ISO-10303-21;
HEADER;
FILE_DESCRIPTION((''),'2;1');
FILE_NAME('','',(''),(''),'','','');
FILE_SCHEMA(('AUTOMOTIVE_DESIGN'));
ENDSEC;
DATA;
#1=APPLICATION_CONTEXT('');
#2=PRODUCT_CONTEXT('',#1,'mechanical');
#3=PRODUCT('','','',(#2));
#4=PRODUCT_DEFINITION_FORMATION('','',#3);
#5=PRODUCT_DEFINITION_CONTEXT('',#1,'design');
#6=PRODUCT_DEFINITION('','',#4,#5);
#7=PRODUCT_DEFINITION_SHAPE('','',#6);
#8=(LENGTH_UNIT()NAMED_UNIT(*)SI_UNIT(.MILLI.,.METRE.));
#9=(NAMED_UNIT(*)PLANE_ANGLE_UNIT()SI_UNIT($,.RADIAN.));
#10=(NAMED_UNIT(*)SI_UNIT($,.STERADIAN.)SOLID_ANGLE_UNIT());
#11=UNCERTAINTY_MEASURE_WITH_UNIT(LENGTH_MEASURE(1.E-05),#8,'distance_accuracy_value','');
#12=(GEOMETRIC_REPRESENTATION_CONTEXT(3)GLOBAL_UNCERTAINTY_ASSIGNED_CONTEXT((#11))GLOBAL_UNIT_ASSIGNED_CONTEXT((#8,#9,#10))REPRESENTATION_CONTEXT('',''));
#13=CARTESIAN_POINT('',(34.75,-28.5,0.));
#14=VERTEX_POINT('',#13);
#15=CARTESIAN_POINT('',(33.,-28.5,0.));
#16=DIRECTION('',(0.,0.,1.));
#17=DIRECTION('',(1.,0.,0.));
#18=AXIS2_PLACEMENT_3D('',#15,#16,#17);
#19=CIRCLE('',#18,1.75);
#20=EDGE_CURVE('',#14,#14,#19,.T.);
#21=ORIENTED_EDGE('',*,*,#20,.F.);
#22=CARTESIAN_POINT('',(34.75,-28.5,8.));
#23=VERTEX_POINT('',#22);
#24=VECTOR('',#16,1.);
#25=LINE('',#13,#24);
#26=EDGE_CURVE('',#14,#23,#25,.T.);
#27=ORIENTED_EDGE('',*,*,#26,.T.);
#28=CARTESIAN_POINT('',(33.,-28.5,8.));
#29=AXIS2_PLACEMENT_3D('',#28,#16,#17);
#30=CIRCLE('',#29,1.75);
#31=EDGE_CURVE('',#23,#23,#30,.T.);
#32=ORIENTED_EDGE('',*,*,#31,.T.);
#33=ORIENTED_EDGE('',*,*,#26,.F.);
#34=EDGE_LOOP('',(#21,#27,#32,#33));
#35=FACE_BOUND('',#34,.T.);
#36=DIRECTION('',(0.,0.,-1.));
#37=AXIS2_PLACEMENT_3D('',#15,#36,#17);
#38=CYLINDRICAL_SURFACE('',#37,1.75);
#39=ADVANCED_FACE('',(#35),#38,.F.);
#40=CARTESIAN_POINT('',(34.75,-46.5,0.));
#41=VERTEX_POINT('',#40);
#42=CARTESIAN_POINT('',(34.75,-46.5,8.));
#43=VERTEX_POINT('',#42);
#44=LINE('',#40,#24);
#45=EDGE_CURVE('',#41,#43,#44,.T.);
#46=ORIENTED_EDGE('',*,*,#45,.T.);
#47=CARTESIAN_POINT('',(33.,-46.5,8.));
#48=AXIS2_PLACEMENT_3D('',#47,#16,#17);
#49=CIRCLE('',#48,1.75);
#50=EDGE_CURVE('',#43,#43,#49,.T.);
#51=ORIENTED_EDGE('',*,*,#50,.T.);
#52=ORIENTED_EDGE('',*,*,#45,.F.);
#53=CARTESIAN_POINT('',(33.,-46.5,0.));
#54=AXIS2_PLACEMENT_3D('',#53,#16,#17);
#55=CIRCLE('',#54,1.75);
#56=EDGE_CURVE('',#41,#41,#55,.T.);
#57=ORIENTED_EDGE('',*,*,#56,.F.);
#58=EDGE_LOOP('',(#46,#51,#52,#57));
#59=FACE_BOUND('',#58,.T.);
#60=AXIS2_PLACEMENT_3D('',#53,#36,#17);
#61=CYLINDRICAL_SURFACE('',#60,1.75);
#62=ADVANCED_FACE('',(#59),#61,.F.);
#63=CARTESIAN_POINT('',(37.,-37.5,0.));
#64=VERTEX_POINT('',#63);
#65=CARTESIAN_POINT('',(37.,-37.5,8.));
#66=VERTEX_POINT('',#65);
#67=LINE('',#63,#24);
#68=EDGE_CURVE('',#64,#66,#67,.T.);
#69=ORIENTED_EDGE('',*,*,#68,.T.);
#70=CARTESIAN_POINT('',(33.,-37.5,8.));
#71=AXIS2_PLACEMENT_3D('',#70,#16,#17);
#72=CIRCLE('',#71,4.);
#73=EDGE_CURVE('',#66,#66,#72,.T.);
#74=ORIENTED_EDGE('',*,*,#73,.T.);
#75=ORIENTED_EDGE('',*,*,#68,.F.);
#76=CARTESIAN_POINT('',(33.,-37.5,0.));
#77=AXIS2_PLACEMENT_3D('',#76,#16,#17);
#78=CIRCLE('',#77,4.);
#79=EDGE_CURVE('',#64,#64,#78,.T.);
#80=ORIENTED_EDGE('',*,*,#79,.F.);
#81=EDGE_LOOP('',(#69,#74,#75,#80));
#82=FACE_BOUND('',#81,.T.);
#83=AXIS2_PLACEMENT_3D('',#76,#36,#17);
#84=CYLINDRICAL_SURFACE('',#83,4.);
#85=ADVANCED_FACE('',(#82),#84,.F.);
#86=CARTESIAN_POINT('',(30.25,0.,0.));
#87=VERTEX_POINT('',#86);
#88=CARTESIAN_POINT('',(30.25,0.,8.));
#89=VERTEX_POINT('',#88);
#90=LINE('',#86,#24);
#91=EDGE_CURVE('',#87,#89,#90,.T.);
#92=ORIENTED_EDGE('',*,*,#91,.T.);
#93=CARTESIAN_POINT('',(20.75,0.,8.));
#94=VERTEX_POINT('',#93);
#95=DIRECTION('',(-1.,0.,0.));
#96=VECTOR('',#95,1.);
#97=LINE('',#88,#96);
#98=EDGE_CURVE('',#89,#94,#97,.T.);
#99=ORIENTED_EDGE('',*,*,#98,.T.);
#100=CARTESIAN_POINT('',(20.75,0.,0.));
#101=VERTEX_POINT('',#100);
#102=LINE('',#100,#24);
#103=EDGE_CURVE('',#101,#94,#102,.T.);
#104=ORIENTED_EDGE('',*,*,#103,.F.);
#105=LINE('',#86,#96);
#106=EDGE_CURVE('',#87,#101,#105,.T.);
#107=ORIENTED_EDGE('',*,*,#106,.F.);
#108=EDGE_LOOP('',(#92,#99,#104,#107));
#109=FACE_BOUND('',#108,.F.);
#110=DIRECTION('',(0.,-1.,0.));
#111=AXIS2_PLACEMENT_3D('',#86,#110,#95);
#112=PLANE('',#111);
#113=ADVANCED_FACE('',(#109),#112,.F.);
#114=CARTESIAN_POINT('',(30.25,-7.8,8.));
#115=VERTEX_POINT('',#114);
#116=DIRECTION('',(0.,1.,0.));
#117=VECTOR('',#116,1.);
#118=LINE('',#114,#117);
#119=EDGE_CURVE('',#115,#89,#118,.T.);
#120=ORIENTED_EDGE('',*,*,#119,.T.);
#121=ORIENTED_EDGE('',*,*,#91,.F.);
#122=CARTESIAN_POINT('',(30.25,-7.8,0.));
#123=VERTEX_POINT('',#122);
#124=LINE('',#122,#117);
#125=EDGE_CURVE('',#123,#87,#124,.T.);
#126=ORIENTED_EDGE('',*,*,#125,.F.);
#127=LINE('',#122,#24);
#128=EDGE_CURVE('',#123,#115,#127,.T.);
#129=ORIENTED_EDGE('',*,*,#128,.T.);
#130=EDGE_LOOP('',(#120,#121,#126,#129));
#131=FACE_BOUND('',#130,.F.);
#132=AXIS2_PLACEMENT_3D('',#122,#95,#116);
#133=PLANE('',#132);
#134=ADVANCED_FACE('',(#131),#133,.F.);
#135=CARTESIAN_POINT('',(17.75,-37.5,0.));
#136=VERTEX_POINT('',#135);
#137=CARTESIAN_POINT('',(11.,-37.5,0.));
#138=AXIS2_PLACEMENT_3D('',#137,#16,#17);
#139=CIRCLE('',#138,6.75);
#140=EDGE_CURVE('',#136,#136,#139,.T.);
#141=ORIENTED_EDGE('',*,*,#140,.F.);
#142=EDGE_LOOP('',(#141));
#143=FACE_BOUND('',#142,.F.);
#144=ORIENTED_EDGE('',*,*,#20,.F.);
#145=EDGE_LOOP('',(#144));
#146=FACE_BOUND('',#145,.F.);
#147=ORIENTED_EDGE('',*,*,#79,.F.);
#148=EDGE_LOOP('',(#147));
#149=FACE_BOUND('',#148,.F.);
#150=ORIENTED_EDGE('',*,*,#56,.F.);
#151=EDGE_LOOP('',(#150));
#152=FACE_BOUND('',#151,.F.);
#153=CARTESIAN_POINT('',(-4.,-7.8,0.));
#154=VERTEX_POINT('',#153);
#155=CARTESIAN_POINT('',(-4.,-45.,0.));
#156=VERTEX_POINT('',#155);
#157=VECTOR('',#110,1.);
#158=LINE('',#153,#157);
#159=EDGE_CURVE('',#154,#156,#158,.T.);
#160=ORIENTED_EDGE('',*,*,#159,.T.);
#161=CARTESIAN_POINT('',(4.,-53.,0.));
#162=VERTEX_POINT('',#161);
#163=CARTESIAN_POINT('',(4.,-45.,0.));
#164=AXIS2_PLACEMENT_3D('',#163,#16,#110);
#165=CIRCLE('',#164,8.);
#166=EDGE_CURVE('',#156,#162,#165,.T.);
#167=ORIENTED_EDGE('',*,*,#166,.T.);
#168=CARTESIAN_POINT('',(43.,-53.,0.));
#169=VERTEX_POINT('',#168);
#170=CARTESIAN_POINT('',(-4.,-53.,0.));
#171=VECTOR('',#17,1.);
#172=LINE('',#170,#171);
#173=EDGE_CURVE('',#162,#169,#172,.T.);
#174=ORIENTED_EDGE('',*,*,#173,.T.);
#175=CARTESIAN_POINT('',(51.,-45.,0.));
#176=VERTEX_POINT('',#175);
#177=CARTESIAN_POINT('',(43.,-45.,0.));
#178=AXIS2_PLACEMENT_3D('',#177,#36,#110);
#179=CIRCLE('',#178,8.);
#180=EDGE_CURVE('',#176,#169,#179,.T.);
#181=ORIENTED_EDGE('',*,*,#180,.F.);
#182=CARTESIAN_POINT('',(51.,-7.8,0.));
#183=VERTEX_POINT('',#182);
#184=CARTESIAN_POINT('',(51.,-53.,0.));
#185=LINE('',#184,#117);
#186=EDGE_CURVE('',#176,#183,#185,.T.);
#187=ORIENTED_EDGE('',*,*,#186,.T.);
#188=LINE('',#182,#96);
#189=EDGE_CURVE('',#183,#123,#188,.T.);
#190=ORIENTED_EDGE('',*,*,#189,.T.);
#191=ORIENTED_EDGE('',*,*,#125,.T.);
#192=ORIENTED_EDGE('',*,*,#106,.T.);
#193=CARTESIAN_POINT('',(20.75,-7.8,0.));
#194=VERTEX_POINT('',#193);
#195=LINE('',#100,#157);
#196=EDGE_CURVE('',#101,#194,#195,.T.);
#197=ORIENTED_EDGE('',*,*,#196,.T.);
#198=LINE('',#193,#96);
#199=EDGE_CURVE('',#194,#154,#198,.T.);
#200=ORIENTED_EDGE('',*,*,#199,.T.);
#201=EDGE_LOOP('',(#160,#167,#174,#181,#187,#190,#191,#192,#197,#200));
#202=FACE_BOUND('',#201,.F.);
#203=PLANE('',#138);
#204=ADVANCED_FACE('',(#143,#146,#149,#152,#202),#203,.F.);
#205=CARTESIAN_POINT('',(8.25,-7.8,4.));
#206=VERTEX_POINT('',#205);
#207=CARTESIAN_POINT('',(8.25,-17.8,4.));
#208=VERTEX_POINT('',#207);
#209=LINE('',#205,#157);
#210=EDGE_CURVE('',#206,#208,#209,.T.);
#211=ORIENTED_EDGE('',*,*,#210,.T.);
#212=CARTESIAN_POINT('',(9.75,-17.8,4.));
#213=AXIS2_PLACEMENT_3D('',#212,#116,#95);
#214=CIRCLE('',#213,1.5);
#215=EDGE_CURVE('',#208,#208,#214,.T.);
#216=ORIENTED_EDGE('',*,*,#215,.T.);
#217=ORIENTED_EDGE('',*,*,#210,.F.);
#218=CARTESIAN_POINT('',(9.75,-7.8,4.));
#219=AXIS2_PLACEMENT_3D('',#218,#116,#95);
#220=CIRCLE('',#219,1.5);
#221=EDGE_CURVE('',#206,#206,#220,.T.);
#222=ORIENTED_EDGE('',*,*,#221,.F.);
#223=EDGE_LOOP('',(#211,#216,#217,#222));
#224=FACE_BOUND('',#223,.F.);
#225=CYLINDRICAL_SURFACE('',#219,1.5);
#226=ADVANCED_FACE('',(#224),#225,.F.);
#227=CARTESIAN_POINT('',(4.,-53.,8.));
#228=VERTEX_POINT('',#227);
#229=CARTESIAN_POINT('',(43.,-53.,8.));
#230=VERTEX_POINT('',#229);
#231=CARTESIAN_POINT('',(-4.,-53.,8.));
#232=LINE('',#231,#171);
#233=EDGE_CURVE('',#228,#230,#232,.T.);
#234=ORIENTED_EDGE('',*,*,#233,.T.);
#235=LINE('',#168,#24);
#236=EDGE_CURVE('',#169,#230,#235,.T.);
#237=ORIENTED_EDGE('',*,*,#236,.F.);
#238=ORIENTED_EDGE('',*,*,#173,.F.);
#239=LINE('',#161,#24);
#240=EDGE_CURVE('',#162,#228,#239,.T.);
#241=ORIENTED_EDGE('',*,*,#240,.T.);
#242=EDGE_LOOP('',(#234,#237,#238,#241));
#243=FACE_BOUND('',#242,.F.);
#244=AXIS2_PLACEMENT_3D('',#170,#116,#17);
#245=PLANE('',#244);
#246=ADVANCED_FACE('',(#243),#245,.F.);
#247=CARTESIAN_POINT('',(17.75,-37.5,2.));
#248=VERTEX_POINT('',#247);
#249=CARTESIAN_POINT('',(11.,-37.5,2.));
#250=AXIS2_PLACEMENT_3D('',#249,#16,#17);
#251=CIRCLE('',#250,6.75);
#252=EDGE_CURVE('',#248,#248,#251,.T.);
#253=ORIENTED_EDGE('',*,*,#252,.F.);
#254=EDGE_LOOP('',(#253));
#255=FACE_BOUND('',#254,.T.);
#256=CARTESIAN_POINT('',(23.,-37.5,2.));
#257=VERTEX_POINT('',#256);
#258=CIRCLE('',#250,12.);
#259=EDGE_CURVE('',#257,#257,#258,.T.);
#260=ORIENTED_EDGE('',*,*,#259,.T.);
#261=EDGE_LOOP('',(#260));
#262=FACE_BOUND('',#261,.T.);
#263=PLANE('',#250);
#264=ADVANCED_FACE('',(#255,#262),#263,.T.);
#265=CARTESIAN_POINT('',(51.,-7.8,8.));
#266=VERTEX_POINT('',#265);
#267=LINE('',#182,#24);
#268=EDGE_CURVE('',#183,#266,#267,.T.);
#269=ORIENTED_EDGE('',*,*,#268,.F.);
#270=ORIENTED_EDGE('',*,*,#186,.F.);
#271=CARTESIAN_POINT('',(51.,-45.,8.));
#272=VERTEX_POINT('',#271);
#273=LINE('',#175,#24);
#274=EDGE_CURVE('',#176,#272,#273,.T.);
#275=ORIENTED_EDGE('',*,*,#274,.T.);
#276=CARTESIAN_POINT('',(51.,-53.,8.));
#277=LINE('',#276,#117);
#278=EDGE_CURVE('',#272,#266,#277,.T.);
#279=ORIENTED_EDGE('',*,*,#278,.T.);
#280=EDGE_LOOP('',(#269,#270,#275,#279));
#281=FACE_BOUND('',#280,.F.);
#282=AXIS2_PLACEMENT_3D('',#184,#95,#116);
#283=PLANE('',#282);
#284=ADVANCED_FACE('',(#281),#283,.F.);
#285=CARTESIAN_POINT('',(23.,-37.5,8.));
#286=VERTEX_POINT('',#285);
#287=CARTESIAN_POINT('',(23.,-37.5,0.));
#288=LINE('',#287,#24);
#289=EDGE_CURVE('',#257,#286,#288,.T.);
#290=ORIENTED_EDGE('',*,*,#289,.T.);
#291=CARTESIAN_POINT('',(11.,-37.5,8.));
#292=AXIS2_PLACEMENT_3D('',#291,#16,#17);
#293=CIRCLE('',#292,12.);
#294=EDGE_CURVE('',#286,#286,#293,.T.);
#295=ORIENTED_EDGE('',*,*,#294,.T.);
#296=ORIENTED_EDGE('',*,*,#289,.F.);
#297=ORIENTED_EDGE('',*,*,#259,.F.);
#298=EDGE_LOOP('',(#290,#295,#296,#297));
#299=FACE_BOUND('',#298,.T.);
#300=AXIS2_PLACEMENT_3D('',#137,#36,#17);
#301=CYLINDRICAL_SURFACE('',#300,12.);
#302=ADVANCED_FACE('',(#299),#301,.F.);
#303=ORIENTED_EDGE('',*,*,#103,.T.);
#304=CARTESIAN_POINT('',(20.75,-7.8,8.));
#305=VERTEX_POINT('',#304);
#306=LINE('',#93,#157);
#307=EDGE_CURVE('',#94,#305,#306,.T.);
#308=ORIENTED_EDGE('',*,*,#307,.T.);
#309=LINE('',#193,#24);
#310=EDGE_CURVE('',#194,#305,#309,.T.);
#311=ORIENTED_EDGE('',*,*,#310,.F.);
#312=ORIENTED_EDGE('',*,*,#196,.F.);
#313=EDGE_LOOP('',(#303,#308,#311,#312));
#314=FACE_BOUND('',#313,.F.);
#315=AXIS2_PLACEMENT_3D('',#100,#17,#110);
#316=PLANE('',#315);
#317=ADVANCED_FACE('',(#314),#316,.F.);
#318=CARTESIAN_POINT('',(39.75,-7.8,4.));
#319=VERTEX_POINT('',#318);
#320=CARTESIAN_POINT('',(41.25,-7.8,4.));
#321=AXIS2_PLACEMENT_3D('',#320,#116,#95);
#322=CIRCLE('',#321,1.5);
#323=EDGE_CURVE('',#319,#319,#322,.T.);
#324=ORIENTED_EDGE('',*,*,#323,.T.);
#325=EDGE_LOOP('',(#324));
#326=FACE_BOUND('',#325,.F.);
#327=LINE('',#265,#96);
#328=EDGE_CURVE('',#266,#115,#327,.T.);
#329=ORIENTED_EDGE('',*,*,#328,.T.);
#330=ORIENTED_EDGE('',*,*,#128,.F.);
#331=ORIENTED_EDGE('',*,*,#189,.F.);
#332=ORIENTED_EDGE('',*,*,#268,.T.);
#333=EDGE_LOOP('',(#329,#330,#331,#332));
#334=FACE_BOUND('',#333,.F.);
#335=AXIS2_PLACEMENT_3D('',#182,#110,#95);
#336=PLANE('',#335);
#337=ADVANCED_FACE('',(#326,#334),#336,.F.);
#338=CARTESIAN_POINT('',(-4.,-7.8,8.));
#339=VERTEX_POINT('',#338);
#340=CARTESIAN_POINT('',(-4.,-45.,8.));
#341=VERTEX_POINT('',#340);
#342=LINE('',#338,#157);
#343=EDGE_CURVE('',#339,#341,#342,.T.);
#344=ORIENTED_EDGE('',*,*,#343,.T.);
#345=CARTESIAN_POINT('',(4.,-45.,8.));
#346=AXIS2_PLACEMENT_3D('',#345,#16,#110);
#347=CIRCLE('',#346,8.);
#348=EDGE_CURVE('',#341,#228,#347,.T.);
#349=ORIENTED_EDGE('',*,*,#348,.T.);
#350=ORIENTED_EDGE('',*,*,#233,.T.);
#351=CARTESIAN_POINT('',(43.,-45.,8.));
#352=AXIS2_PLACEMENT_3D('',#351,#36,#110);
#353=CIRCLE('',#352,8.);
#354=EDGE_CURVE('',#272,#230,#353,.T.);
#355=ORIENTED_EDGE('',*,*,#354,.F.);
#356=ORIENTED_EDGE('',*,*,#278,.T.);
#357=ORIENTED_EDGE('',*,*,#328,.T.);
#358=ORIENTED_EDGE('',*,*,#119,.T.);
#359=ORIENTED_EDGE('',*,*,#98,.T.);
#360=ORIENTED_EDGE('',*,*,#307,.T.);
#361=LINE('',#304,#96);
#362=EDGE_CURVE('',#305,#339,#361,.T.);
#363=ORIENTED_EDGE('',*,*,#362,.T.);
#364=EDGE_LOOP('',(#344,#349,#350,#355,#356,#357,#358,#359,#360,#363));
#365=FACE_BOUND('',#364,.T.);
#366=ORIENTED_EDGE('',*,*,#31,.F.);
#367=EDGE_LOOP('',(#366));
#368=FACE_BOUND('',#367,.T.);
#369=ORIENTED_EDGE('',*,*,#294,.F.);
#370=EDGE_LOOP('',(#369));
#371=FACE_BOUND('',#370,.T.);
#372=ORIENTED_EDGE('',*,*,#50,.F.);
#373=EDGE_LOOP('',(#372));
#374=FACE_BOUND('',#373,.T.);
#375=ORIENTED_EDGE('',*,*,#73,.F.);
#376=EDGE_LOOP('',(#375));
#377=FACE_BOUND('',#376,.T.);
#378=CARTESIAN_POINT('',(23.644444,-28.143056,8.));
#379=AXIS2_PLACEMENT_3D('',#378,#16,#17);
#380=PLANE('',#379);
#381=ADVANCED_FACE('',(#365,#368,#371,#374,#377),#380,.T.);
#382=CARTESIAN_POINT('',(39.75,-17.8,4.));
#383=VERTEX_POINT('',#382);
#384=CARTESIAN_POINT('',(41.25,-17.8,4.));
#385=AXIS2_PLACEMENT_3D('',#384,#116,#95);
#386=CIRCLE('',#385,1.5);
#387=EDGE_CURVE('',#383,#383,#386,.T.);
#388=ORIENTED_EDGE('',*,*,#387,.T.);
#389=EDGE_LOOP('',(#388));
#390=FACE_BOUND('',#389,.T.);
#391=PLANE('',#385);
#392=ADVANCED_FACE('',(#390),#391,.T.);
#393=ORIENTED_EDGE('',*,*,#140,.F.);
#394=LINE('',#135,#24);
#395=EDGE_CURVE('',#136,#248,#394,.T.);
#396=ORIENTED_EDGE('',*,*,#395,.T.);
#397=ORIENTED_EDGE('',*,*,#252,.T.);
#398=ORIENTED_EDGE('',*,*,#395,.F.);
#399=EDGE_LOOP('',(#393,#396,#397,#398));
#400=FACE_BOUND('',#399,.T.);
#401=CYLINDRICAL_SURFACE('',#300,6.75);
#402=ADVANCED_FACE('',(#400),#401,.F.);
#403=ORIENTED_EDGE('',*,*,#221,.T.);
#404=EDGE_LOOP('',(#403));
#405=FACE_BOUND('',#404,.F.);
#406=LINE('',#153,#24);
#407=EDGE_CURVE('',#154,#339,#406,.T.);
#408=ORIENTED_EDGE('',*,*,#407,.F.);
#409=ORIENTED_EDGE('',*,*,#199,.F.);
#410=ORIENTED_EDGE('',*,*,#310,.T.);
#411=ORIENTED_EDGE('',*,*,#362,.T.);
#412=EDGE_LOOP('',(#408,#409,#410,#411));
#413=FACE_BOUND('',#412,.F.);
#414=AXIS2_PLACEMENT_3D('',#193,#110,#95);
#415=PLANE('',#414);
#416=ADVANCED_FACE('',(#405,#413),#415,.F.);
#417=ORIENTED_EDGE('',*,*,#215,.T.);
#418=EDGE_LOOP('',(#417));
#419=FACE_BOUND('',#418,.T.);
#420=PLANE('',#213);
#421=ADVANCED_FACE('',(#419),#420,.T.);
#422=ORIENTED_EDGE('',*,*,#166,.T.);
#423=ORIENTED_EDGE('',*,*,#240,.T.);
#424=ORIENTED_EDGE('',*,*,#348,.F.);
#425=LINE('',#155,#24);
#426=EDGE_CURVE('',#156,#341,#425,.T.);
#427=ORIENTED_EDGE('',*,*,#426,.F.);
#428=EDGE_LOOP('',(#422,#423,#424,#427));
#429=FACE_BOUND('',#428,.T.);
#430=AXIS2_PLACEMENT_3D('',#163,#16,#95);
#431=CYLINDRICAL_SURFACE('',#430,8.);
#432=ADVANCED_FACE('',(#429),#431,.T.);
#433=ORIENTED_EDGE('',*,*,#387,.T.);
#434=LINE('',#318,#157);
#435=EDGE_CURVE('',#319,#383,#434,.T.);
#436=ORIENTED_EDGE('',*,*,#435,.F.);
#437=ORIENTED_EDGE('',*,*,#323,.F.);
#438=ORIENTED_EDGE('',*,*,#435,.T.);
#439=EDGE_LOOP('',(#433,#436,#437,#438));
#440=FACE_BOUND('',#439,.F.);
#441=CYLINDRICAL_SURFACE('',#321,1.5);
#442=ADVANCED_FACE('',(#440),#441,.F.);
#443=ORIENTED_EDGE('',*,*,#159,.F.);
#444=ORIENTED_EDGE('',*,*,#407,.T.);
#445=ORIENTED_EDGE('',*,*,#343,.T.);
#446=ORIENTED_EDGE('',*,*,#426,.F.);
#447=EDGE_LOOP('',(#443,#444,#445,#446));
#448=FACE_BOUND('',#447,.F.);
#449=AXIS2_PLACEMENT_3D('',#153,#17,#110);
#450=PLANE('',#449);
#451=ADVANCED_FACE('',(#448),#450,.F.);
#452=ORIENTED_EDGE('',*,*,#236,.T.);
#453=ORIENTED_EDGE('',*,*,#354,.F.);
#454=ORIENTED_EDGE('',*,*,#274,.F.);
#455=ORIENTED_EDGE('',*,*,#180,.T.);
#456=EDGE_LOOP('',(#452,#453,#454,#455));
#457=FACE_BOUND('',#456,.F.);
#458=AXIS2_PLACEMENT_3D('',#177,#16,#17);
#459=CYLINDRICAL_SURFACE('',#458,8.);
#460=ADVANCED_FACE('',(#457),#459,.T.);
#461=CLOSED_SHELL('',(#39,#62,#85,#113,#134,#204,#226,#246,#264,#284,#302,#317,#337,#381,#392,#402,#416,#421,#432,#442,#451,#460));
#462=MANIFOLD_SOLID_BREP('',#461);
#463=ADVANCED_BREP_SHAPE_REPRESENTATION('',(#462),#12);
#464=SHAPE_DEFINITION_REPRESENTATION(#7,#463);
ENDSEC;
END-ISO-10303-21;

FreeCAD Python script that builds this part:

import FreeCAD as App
import Part
import Sketcher

V = App.Vector
Q = App.Units.Quantity


def edges_at(feature, points):
    """Names of the edges that pass closest to the given points."""
    edges = feature.Shape.Edges
    near = lambda p: min(range(len(edges)), key=lambda i: edges[i].distToShape(Part.Vertex(*p))[0])
    return sorted({f"Edge{near(p) + 1}" for p in points})

doc = App.newDocument("Part")
body = doc.addObject("PartDesign::Body", "Body")

# Sketch on XY plane
sketch1 = body.newObject("Sketcher::SketchObject", "Sketch")
sketch1.AttachmentSupport = (doc.getObject("XY_Plane"), [""])
sketch1.MapMode = "FlatFace"
sketch1.addGeometry([
    Part.LineSegment(V(30.2, 0, 0), V(20.8, 0, 0)),  # 0
    Part.LineSegment(V(20.8, 0, 0), V(20.8, -7.8, 0)),  # 1
    Part.LineSegment(V(20.8, -7.8, 0), V(-4, -7.8, 0)),  # 2
    Part.LineSegment(V(-4, -7.8, 0), V(-4, -53, 0)),  # 3
    Part.LineSegment(V(-4, -53, 0), V(51, -53, 0)),  # 4
    Part.LineSegment(V(51, -53, 0), V(51, -7.8, 0)),  # 5
    Part.LineSegment(V(51, -7.8, 0), V(30.2, -7.8, 0)),  # 6
    Part.LineSegment(V(30.2, -7.8, 0), V(30.2, 0, 0)),  # 7
    Part.Circle(V(33, -46.5, 0), V(0, 0, 1), 1.8),  # 8
    Part.Circle(V(11, -37.5, 0), V(0, 0, 1), 12),  # 9
    Part.Circle(V(33, -37.5, 0), V(0, 0, 1), 4),  # 10
    Part.Circle(V(33, -28.5, 0), V(0, 0, 1), 1.8),  # 11
], False)
sketch1.addConstraint([
    Sketcher.Constraint("Coincident", 0, 2, 1, 1),
    Sketcher.Constraint("Coincident", 1, 2, 2, 1),
    Sketcher.Constraint("Coincident", 2, 2, 3, 1),
    Sketcher.Constraint("Coincident", 3, 2, 4, 1),
    Sketcher.Constraint("Coincident", 4, 2, 5, 1),
    Sketcher.Constraint("Coincident", 5, 2, 6, 1),
    Sketcher.Constraint("Coincident", 6, 2, 7, 1),
    Sketcher.Constraint("Coincident", 7, 2, 0, 1),
    Sketcher.Constraint("Horizontal", 0),
    Sketcher.Constraint("Vertical", 1),
    Sketcher.Constraint("Horizontal", 2),
    Sketcher.Constraint("Vertical", 3),
    Sketcher.Constraint("Horizontal", 4),
    Sketcher.Constraint("Vertical", 5),
    Sketcher.Constraint("Horizontal", 6),
    Sketcher.Constraint("Vertical", 7),
    Sketcher.Constraint("Equal", 8, 11),
    Sketcher.Constraint("PointOnObject", 0, 2, -1),
    Sketcher.Constraint("Horizontal", 9, 3, 10, 3),
    Sketcher.Constraint("Horizontal", 2, 2, 5, 2),
    Sketcher.Constraint("Vertical", 8, 3, 10, 3),
    Sketcher.Constraint("Vertical", 10, 3, 11, 3),
    Sketcher.Constraint("Diameter", 9, Q("24 mm")),
    Sketcher.Constraint("Diameter", 10, Q("8 mm")),
    Sketcher.Constraint("Diameter", 8, Q("3.5 mm")),
    Sketcher.Constraint("DistanceX", 4, 1, 4, 2, Q("55 mm")),
    Sketcher.Constraint("DistanceX", 0, 2, 0, 1, Q("9.5 mm")),
    Sketcher.Constraint("DistanceY", 1, 2, 1, 1, Q("7.8 mm")),
    Sketcher.Constraint("DistanceY", 3, 2, 3, 1, Q("45.2 mm")),
    Sketcher.Constraint("DistanceX", -1, 1, 8, 3, Q("33 mm")),
    Sketcher.Constraint("DistanceX", -1, 1, 9, 3, Q("11 mm")),
    Sketcher.Constraint("DistanceX", 2, 2, -1, 1, Q("4 mm")),
    Sketcher.Constraint("DistanceY", 8, 3, 9, 3, Q("9 mm")),
    Sketcher.Constraint("DistanceY", 10, 3, 11, 3, Q("9 mm")),
    Sketcher.Constraint("DistanceX", 2, 2, 2, 1, Q("24.75 mm")),
    Sketcher.Constraint("DistanceY", 8, 3, -1, 1, Q("46.5 mm")),
])
pad1 = body.newObject("PartDesign::Pad", "Pad")
pad1.Profile = sketch1
pad1.Length = 8

# Sketch on XY plane
sketch2 = body.newObject("Sketcher::SketchObject", "Sketch001")
sketch2.AttachmentSupport = (doc.getObject("XY_Plane"), [""])
sketch2.MapMode = "FlatFace"
sketch2.addGeometry([
    Part.Circle(V(11, -38, 0), V(0, 0, 1), 12),
    Part.Circle(V(11, -38, 0), V(0, 0, 1), 7),
], False)
sketch2.addConstraint([
    Sketcher.Constraint("Coincident", 1, 3, 0, 3),
    Sketcher.Constraint("Diameter", 0, Q("24 mm")),
    Sketcher.Constraint("Diameter", 1, Q("13.5 mm")),
    Sketcher.Constraint("DistanceX", -1, 1, 0, 3, Q("11 mm")),
    Sketcher.Constraint("DistanceY", 0, 3, -1, 1, Q("37.5 mm")),
])
pad2 = body.newObject("PartDesign::Pad", "Pad001")
pad2.Profile = sketch2
pad2.Length = 2
doc.recompute()

fillet = body.newObject("PartDesign::Fillet", "Fillet")
fillet.Base = (pad2, edges_at(pad2, [(-4, -53, 4), (51, -53, 4)]))
fillet.Radius = 8

# Sketch on XZ plane
sketch3 = body.newObject("Sketcher::SketchObject", "Sketch002")
sketch3.AttachmentSupport = (doc.getObject("XZ_Plane"), [""])
sketch3.MapMode = "FlatFace"
sketch3.AttachmentOffset = App.Placement(V(0, 0, 7.8), App.Rotation())
sketch3.addGeometry([
    Part.Circle(V(41.2, 4, 0), V(0, 0, 1), 1.5),
    Part.Circle(V(9.8, 4, 0), V(0, 0, 1), 1.5),
], False)
sketch3.addConstraint([
    Sketcher.Constraint("Equal", 0, 1),
    Sketcher.Constraint("Horizontal", 0, 3, 1, 3),
    Sketcher.Constraint("Diameter", 0, Q("3 mm")),
    Sketcher.Constraint("DistanceY", -1, 1, 0, 3, Q("4 mm")),
    Sketcher.Constraint("DistanceX", 1, 3, 0, 3, Q("31.5 mm")),
    Sketcher.Constraint("DistanceX", -1, 1, 0, 3, Q("41.25 mm")),
])
pocket1 = body.newObject("PartDesign::Pocket", "Pocket")
pocket1.Profile = sketch3
pocket1.Length = 10
pocket1.Reversed = True

doc.recompute()
